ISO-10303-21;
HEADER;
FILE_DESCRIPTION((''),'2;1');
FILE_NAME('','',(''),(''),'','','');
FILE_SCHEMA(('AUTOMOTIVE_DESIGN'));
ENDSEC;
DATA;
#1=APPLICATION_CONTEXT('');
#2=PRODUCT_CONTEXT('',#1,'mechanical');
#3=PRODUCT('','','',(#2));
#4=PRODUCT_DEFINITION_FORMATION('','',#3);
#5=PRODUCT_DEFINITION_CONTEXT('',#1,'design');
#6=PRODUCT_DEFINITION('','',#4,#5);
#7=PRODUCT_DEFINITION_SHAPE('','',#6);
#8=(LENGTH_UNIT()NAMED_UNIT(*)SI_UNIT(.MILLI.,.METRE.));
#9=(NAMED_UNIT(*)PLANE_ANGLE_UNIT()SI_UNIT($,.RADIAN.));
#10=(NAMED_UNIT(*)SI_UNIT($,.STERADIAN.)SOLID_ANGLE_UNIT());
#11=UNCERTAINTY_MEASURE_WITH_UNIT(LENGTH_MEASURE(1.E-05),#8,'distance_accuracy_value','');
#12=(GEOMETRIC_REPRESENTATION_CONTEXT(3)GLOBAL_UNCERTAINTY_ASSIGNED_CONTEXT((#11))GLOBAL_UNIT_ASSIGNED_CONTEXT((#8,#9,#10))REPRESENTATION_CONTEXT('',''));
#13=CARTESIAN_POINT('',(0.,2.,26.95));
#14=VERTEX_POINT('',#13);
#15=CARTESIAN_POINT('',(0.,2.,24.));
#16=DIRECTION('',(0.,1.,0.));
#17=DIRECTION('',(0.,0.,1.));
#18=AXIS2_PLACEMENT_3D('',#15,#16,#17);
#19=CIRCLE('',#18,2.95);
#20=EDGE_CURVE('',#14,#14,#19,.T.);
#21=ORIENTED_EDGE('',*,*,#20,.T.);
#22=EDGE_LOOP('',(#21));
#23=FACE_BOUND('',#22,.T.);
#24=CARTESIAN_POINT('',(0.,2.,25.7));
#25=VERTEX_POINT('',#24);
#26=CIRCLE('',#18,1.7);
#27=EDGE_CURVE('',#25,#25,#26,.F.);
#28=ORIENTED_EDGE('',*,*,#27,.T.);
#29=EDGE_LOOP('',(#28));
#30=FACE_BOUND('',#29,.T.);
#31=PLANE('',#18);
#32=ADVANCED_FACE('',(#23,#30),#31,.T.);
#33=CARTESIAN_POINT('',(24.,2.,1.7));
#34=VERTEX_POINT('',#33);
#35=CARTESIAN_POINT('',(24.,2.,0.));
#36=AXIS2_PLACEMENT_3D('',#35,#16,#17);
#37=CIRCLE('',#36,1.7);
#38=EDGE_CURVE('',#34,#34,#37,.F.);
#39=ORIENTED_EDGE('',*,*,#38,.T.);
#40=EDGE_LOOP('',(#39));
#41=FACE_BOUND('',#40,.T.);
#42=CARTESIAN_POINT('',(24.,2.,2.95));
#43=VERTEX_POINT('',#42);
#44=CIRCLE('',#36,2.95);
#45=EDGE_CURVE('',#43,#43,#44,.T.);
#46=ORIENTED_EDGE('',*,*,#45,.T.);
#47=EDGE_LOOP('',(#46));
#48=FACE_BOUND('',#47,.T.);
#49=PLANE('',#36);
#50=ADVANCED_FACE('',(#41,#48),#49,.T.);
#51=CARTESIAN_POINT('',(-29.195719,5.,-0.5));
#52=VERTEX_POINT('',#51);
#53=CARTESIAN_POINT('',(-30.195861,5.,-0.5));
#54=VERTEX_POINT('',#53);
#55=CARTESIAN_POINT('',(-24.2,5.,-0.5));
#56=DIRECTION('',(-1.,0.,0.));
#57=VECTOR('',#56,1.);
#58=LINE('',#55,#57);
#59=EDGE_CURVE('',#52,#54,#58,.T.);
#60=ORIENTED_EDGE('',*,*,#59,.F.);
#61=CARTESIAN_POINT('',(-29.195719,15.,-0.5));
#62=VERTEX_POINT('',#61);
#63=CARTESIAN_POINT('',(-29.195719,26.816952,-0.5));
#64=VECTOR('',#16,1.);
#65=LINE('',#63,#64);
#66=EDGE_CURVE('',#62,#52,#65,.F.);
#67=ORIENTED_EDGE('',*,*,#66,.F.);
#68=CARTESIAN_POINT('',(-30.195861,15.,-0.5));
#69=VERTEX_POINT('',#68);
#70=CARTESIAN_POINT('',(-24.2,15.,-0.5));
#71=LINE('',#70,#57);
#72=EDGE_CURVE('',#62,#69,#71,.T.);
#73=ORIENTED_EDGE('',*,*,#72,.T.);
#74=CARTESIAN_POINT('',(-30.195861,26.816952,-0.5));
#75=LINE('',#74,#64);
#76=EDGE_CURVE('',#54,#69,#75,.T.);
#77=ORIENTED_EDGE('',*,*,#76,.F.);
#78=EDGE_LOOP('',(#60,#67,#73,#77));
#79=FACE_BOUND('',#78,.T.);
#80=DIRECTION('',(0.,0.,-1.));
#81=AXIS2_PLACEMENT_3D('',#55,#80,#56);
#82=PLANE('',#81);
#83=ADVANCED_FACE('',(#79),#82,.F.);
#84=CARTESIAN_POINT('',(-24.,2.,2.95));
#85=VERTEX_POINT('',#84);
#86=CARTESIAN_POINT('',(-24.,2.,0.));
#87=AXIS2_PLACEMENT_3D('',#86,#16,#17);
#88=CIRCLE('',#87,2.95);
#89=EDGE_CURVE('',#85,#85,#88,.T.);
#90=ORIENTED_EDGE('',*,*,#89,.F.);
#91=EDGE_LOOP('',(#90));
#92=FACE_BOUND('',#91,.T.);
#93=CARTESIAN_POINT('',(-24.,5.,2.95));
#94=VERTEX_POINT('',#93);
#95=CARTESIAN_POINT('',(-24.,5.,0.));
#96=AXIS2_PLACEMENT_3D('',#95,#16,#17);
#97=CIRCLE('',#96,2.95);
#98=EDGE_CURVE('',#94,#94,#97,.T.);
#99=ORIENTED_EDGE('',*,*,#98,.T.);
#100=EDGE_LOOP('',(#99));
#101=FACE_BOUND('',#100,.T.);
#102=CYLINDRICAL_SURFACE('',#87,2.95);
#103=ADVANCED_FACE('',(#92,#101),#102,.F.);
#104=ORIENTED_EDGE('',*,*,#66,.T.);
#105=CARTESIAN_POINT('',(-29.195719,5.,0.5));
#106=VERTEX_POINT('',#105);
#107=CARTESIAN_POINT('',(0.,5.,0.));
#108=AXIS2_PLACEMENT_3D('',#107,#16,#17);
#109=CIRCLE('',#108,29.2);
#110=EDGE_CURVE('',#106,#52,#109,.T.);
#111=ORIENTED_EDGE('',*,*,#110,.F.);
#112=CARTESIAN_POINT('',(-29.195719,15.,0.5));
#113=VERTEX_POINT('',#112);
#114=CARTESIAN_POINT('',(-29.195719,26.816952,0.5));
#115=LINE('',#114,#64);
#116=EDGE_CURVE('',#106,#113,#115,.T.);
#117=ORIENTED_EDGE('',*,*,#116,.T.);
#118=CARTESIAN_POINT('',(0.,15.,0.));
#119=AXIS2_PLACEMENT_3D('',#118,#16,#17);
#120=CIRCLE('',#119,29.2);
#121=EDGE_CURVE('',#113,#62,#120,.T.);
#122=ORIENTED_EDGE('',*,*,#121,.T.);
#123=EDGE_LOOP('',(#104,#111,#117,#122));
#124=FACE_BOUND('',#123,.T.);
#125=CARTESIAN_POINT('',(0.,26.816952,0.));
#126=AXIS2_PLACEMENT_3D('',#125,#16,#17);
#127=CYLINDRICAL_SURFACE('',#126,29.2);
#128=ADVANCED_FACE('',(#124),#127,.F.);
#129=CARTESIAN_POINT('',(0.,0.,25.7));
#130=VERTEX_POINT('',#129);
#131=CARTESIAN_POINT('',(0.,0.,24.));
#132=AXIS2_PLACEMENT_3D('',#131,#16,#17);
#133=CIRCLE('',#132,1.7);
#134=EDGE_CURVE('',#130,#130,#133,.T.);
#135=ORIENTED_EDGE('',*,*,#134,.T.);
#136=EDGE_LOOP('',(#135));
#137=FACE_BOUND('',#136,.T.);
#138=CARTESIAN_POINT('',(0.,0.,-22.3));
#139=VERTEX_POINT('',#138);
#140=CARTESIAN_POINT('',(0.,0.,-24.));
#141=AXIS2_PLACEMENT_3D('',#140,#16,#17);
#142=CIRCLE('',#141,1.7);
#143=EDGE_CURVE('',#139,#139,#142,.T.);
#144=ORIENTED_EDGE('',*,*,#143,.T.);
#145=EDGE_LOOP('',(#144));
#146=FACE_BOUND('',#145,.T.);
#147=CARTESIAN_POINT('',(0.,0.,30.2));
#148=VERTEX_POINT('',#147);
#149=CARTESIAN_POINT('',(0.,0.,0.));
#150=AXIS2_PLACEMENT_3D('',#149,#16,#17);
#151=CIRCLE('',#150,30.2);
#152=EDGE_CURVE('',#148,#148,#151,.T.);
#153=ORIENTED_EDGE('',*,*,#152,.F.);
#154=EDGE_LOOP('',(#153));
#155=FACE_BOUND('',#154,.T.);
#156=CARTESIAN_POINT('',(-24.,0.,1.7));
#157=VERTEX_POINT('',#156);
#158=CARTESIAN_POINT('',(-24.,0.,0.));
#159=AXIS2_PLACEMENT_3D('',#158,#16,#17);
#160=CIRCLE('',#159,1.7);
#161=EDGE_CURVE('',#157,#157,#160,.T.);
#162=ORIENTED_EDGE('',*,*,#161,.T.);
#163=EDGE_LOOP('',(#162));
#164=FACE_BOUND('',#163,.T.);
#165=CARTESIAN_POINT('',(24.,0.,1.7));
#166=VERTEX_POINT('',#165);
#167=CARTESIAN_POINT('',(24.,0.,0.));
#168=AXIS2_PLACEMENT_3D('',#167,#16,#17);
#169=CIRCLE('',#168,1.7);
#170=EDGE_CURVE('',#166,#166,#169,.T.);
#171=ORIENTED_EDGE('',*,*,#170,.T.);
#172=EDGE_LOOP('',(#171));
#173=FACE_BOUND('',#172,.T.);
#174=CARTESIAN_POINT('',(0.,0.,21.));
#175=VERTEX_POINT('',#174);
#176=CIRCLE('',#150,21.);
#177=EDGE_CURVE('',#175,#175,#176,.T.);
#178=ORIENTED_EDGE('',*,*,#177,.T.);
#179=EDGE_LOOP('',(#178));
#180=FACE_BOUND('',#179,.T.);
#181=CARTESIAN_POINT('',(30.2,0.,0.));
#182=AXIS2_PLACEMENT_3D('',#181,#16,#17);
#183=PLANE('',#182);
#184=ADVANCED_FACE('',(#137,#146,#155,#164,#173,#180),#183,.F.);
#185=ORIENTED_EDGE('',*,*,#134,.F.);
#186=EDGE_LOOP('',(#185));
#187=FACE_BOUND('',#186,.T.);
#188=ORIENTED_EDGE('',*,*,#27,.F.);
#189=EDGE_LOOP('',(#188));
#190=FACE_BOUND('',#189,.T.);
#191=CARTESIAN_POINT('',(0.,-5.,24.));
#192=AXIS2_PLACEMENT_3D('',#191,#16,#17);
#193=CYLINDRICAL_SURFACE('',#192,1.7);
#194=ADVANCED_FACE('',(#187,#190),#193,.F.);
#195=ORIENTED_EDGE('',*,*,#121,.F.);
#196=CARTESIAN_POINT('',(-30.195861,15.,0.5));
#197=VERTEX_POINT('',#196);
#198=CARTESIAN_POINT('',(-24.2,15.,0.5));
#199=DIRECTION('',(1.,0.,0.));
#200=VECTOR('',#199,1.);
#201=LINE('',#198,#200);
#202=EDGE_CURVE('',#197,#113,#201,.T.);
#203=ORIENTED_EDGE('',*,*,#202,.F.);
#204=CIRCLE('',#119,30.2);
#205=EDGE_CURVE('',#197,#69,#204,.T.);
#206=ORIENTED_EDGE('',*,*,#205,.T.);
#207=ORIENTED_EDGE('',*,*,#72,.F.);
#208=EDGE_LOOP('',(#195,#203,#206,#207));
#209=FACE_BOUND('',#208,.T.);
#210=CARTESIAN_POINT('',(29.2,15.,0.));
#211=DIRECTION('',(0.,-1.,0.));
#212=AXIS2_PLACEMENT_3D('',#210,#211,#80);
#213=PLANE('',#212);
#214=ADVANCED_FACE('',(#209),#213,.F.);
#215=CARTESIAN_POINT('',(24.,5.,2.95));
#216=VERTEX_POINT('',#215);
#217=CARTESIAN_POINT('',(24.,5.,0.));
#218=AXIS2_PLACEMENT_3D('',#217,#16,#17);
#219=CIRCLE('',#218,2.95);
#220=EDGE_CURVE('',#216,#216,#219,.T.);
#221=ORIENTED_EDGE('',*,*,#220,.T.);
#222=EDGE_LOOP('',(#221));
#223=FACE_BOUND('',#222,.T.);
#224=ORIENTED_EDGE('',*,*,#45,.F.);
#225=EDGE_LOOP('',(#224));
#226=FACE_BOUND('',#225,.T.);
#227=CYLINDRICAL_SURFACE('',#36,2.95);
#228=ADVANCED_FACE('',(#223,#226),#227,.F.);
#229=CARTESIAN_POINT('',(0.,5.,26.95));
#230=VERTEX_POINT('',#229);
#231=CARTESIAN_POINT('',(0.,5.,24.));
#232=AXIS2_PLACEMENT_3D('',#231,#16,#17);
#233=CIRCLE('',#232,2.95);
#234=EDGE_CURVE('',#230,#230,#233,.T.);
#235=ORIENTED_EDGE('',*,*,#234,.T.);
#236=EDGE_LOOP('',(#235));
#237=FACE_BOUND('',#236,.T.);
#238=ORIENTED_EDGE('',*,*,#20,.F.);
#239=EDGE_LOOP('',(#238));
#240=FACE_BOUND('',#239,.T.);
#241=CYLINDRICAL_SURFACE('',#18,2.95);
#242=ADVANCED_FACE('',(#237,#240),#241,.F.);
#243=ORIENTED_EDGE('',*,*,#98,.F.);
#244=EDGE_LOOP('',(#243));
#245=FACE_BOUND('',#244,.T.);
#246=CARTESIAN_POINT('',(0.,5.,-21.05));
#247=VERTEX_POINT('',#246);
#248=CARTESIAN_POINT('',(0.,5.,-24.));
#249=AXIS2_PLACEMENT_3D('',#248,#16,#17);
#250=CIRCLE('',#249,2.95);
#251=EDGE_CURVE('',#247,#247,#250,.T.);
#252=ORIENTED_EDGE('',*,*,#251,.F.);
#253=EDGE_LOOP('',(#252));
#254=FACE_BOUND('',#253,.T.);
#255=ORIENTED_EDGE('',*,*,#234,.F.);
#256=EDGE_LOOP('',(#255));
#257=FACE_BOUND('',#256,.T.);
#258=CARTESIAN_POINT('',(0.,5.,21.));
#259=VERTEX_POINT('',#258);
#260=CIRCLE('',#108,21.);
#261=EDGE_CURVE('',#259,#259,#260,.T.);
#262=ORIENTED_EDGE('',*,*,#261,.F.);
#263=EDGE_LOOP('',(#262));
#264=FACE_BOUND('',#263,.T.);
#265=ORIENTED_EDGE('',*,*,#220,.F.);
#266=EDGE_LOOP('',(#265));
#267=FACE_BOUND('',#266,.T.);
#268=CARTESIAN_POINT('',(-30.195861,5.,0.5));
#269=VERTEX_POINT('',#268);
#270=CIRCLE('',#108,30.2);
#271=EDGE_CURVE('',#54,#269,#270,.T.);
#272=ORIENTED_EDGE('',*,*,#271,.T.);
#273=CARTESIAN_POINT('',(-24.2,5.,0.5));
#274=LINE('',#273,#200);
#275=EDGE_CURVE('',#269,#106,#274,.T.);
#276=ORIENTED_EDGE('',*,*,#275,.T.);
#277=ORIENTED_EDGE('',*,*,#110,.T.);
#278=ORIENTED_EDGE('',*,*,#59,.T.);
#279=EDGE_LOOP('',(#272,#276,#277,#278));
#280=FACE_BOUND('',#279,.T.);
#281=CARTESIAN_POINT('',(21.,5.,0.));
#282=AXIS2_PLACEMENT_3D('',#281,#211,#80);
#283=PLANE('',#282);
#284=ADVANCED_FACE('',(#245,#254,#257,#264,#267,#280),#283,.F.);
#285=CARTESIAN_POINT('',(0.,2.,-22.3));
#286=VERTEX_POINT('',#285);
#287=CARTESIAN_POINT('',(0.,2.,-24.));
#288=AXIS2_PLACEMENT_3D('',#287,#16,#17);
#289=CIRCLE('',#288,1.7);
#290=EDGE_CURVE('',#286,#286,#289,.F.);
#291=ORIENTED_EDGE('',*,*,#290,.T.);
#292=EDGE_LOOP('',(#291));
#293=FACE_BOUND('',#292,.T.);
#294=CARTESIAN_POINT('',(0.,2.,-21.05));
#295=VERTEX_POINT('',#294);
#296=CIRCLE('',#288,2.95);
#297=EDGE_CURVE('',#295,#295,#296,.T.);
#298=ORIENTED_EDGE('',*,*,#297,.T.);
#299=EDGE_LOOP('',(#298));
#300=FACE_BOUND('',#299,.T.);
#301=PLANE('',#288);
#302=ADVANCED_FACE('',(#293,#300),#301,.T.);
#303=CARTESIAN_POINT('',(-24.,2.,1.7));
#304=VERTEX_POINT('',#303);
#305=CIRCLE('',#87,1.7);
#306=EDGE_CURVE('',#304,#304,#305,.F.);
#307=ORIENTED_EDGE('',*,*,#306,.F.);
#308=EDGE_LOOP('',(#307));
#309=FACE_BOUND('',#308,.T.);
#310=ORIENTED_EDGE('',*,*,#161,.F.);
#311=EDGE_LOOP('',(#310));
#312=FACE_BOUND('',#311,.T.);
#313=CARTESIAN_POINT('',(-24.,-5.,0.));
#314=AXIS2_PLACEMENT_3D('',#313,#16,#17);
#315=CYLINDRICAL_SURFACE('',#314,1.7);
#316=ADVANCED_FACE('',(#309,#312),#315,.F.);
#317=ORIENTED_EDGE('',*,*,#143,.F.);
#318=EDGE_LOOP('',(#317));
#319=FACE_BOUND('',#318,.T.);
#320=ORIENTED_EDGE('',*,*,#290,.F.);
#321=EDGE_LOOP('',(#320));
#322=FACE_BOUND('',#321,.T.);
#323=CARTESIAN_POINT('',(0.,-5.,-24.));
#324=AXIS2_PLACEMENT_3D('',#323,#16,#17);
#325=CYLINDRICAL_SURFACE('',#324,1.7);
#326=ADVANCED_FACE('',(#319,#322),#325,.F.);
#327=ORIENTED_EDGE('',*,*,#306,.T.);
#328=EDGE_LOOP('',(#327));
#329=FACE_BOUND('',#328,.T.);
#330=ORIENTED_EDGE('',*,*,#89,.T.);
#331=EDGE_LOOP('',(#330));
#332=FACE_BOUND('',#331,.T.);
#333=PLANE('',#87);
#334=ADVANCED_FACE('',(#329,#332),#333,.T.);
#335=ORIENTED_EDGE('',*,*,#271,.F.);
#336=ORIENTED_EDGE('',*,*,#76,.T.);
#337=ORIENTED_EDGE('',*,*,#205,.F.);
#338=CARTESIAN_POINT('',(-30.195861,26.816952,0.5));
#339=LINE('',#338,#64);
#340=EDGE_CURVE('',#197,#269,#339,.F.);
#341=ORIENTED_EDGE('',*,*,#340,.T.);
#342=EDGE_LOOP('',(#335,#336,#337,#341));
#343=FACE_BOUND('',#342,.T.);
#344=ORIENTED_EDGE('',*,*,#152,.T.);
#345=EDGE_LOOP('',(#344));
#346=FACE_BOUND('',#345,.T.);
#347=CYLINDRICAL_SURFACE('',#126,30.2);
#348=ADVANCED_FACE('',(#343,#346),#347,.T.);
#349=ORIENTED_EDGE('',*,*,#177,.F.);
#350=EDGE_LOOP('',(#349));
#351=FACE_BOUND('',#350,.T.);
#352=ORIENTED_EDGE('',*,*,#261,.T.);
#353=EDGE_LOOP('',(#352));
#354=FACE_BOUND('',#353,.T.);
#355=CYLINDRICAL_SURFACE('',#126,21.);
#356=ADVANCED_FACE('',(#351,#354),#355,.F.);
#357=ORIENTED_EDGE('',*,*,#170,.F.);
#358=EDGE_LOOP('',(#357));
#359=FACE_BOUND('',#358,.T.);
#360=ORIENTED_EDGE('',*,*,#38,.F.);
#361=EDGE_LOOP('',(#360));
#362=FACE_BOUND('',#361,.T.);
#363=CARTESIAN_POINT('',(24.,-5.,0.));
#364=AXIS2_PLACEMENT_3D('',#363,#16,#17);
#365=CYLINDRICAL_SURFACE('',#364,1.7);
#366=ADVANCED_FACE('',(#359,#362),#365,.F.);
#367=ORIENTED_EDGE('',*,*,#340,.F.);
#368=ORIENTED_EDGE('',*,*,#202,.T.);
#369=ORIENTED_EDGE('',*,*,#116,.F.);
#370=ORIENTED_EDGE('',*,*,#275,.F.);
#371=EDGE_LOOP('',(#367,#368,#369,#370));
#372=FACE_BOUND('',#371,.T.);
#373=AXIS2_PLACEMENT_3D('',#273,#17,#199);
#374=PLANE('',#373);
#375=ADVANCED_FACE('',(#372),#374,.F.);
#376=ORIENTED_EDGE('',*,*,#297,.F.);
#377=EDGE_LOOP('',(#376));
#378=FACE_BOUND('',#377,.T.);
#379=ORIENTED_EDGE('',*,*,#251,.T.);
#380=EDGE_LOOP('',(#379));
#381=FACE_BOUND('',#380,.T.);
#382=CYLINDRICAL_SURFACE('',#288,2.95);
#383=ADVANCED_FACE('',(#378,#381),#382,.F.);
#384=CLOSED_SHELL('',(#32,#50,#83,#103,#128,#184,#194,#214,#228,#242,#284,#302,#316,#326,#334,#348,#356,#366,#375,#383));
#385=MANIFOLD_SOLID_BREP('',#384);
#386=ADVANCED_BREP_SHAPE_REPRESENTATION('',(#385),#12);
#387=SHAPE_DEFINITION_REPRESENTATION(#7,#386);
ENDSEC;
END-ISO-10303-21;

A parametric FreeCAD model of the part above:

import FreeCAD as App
import Part
import Sketcher

V = App.Vector
Q = App.Units.Quantity


def add_polygon(sketch, points):
    """Adds a closed chain of lines whose ends are joined by coincident constraints."""
    first, n = sketch.GeometryCount, len(points)
    for a, b in zip(points, points[1:] + points[:1]):
        sketch.addGeometry(Part.LineSegment(App.Vector(*a, 0), App.Vector(*b, 0)), False)
    for i in range(n):
        sketch.addConstraint(Sketcher.Constraint("Coincident", first + i, 2, first + (i + 1) % n, 1))

doc = App.newDocument("Part")
body = doc.addObject("PartDesign::Body", "Body")

sketch1 = body.newObject("Sketcher::SketchObject", "Sketch")
sketch1.AttachmentSupport = (doc.getObject("XY_Plane"), [""])
sketch1.MapMode = "FlatFace"
add_polygon(sketch1, [(21, 5), (21, 0), (30.2, 0), (30.2, 15), (29.2, 15), (29.2, 5)])
sketch1.addConstraint(Sketcher.Constraint("Vertical", 0))
sketch1.addConstraint(Sketcher.Constraint("Horizontal", 1))
sketch1.addConstraint(Sketcher.Constraint("Vertical", 2))
sketch1.addConstraint(Sketcher.Constraint("Horizontal", 3))
sketch1.addConstraint(Sketcher.Constraint("Vertical", 4))
sketch1.addConstraint(Sketcher.Constraint("Horizontal", 5))
sketch1.addConstraint(Sketcher.Constraint("PointOnObject", 0, 2, -1))
sketch1.addConstraint(Sketcher.Constraint("DistanceX", 3, 2, 3, 1, Q("1 mm")))
sketch1.addConstraint(Sketcher.Constraint("DistanceY", 0, 2, 0, 1, Q("5 mm")))
sketch1.addConstraint(Sketcher.Constraint("DistanceY", 2, 1, 2, 2, Q("15 mm")))
sketch1.addConstraint(Sketcher.Constraint("DistanceX", 1, 1, 1, 2, Q("9.2 mm")))
sketch1.addConstraint(Sketcher.Constraint("DistanceX", -1, 1, 0, 2, Q("21 mm")))
revolution = body.newObject("PartDesign::Revolution", "Revolution")
revolution.Profile = sketch1
revolution.ReferenceAxis = (sketch1, ["V_Axis"])
revolution.Angle = 360

sketch2 = body.newObject("Sketcher::SketchObject", "Sketch001")
sketch2.AttachmentSupport = (doc.getObject("XZ_Plane"), [""])
sketch2.MapMode = "FlatFace"
sketch2.AttachmentOffset = App.Placement(V(0, 0, -5), App.Rotation())
sketch2.addGeometry(Part.Circle(V(-24, 0, 0), V(0, 0, 1), 1.7), False)
sketch2.addGeometry(Part.Circle(V(0, -24, 0), V(0, 0, 1), 1.7), False)
sketch2.addGeometry(Part.Circle(V(24, 0, 0), V(0, 0, 1), 1.7), False)
sketch2.addGeometry(Part.Circle(V(0, 24, 0), V(0, 0, 1), 1.7), False)
sketch2.addConstraint(Sketcher.Constraint("Equal", 0, 1))
sketch2.addConstraint(Sketcher.Constraint("Equal", 1, 2))
sketch2.addConstraint(Sketcher.Constraint("Equal", 2, 3))
sketch2.addConstraint(Sketcher.Constraint("Symmetric", 0, 3, 2, 3, -1, 1))
sketch2.addConstraint(Sketcher.Constraint("Symmetric", 1, 3, 3, 3, -1, 1))
sketch2.addConstraint(Sketcher.Constraint("PointOnObject", 0, 3, -1))
sketch2.addConstraint(Sketcher.Constraint("PointOnObject", 1, 3, -2))
sketch2.addConstraint(Sketcher.Constraint("Diameter", 0, Q("3.4 mm")))
sketch2.addConstraint(Sketcher.Constraint("DistanceX", 0, 3, -1, 1, Q("24 mm")))
sketch2.addConstraint(Sketcher.Constraint("DistanceY", 1, 3, -1, 1, Q("24 mm")))
pocket1 = body.newObject("PartDesign::Pocket", "Pocket")
pocket1.Profile = sketch2
pocket1.Length = 10
pocket1.Reversed = True

sketch3 = body.newObject("Sketcher::SketchObject", "Sketch002")
sketch3.AttachmentSupport = (doc.getObject("XZ_Plane"), [""])
sketch3.MapMode = "FlatFace"
sketch3.AttachmentOffset = App.Placement(V(0, 0, -5), App.Rotation())
sketch3.addGeometry(Part.Circle(V(-24, 0, 0), V(0, 0, 1), 2.95), False)
sketch3.addGeometry(Part.Circle(V(0, -24, 0), V(0, 0, 1), 2.95), False)
sketch3.addGeometry(Part.Circle(V(24, 0, 0), V(0, 0, 1), 2.95), False)
sketch3.addGeometry(Part.Circle(V(0, 24, 0), V(0, 0, 1), 2.95), False)
sketch3.addConstraint(Sketcher.Constraint("Equal", 0, 1))
sketch3.addConstraint(Sketcher.Constraint("Equal", 1, 2))
sketch3.addConstraint(Sketcher.Constraint("Equal", 2, 3))
sketch3.addConstraint(Sketcher.Constraint("Symmetric", 0, 3, 2, 3, -1, 1))
sketch3.addConstraint(Sketcher.Constraint("Symmetric", 1, 3, 3, 3, -1, 1))
sketch3.addConstraint(Sketcher.Constraint("PointOnObject", 0, 3, -1))
sketch3.addConstraint(Sketcher.Constraint("PointOnObject", 1, 3, -2))
sketch3.addConstraint(Sketcher.Constraint("Diameter", 0, Q("5.9 mm")))
sketch3.addConstraint(Sketcher.Constraint("DistanceX", 0, 3, -1, 1, Q("24 mm")))
sketch3.addConstraint(Sketcher.Constraint("DistanceY", 1, 3, -1, 1, Q("24 mm")))
pocket2 = body.newObject("PartDesign::Pocket", "Pocket001")
pocket2.Profile = sketch3
pocket2.Length = 3
pocket2.Reversed = True

sketch4 = body.newObject("Sketcher::SketchObject", "Sketch003")
sketch4.AttachmentSupport = (doc.getObject("XZ_Plane"), [""])
sketch4.MapMode = "FlatFace"
sketch4.AttachmentOffset = App.Placement(V(0, 0, -15), App.Rotation())
add_polygon(sketch4, [(-34.2, -0.5), (-34.2, 0.5), (-24.2, 0.5), (-24.2, -0.5)])
sketch4.addConstraint(Sketcher.Constraint("Vertical", 0))
sketch4.addConstraint(Sketcher.Constraint("Horizontal", 1))
sketch4.addConstraint(Sketcher.Constraint("Vertical", 2))
sketch4.addConstraint(Sketcher.Constraint("Horizontal", 3))
sketch4.addConstraint(Sketcher.Constraint("DistanceX", 1, 1, 1, 2, Q("10 mm")))
sketch4.addConstraint(Sketcher.Constraint("DistanceY", 0, 1, 0, 2, Q("1 mm")))
sketch4.addConstraint(Sketcher.Constraint("DistanceX", 0, 2, -1, 1, Q("34.2 mm")))
sketch4.addConstraint(Sketcher.Constraint("DistanceY", -1, 1, 0, 2, Q("0.5 mm")))
pocket3 = body.newObject("PartDesign::Pocket", "Pocket002")
pocket3.Profile = sketch4
pocket3.Length = 10
pocket3.Reversed = True

doc.recompute()
